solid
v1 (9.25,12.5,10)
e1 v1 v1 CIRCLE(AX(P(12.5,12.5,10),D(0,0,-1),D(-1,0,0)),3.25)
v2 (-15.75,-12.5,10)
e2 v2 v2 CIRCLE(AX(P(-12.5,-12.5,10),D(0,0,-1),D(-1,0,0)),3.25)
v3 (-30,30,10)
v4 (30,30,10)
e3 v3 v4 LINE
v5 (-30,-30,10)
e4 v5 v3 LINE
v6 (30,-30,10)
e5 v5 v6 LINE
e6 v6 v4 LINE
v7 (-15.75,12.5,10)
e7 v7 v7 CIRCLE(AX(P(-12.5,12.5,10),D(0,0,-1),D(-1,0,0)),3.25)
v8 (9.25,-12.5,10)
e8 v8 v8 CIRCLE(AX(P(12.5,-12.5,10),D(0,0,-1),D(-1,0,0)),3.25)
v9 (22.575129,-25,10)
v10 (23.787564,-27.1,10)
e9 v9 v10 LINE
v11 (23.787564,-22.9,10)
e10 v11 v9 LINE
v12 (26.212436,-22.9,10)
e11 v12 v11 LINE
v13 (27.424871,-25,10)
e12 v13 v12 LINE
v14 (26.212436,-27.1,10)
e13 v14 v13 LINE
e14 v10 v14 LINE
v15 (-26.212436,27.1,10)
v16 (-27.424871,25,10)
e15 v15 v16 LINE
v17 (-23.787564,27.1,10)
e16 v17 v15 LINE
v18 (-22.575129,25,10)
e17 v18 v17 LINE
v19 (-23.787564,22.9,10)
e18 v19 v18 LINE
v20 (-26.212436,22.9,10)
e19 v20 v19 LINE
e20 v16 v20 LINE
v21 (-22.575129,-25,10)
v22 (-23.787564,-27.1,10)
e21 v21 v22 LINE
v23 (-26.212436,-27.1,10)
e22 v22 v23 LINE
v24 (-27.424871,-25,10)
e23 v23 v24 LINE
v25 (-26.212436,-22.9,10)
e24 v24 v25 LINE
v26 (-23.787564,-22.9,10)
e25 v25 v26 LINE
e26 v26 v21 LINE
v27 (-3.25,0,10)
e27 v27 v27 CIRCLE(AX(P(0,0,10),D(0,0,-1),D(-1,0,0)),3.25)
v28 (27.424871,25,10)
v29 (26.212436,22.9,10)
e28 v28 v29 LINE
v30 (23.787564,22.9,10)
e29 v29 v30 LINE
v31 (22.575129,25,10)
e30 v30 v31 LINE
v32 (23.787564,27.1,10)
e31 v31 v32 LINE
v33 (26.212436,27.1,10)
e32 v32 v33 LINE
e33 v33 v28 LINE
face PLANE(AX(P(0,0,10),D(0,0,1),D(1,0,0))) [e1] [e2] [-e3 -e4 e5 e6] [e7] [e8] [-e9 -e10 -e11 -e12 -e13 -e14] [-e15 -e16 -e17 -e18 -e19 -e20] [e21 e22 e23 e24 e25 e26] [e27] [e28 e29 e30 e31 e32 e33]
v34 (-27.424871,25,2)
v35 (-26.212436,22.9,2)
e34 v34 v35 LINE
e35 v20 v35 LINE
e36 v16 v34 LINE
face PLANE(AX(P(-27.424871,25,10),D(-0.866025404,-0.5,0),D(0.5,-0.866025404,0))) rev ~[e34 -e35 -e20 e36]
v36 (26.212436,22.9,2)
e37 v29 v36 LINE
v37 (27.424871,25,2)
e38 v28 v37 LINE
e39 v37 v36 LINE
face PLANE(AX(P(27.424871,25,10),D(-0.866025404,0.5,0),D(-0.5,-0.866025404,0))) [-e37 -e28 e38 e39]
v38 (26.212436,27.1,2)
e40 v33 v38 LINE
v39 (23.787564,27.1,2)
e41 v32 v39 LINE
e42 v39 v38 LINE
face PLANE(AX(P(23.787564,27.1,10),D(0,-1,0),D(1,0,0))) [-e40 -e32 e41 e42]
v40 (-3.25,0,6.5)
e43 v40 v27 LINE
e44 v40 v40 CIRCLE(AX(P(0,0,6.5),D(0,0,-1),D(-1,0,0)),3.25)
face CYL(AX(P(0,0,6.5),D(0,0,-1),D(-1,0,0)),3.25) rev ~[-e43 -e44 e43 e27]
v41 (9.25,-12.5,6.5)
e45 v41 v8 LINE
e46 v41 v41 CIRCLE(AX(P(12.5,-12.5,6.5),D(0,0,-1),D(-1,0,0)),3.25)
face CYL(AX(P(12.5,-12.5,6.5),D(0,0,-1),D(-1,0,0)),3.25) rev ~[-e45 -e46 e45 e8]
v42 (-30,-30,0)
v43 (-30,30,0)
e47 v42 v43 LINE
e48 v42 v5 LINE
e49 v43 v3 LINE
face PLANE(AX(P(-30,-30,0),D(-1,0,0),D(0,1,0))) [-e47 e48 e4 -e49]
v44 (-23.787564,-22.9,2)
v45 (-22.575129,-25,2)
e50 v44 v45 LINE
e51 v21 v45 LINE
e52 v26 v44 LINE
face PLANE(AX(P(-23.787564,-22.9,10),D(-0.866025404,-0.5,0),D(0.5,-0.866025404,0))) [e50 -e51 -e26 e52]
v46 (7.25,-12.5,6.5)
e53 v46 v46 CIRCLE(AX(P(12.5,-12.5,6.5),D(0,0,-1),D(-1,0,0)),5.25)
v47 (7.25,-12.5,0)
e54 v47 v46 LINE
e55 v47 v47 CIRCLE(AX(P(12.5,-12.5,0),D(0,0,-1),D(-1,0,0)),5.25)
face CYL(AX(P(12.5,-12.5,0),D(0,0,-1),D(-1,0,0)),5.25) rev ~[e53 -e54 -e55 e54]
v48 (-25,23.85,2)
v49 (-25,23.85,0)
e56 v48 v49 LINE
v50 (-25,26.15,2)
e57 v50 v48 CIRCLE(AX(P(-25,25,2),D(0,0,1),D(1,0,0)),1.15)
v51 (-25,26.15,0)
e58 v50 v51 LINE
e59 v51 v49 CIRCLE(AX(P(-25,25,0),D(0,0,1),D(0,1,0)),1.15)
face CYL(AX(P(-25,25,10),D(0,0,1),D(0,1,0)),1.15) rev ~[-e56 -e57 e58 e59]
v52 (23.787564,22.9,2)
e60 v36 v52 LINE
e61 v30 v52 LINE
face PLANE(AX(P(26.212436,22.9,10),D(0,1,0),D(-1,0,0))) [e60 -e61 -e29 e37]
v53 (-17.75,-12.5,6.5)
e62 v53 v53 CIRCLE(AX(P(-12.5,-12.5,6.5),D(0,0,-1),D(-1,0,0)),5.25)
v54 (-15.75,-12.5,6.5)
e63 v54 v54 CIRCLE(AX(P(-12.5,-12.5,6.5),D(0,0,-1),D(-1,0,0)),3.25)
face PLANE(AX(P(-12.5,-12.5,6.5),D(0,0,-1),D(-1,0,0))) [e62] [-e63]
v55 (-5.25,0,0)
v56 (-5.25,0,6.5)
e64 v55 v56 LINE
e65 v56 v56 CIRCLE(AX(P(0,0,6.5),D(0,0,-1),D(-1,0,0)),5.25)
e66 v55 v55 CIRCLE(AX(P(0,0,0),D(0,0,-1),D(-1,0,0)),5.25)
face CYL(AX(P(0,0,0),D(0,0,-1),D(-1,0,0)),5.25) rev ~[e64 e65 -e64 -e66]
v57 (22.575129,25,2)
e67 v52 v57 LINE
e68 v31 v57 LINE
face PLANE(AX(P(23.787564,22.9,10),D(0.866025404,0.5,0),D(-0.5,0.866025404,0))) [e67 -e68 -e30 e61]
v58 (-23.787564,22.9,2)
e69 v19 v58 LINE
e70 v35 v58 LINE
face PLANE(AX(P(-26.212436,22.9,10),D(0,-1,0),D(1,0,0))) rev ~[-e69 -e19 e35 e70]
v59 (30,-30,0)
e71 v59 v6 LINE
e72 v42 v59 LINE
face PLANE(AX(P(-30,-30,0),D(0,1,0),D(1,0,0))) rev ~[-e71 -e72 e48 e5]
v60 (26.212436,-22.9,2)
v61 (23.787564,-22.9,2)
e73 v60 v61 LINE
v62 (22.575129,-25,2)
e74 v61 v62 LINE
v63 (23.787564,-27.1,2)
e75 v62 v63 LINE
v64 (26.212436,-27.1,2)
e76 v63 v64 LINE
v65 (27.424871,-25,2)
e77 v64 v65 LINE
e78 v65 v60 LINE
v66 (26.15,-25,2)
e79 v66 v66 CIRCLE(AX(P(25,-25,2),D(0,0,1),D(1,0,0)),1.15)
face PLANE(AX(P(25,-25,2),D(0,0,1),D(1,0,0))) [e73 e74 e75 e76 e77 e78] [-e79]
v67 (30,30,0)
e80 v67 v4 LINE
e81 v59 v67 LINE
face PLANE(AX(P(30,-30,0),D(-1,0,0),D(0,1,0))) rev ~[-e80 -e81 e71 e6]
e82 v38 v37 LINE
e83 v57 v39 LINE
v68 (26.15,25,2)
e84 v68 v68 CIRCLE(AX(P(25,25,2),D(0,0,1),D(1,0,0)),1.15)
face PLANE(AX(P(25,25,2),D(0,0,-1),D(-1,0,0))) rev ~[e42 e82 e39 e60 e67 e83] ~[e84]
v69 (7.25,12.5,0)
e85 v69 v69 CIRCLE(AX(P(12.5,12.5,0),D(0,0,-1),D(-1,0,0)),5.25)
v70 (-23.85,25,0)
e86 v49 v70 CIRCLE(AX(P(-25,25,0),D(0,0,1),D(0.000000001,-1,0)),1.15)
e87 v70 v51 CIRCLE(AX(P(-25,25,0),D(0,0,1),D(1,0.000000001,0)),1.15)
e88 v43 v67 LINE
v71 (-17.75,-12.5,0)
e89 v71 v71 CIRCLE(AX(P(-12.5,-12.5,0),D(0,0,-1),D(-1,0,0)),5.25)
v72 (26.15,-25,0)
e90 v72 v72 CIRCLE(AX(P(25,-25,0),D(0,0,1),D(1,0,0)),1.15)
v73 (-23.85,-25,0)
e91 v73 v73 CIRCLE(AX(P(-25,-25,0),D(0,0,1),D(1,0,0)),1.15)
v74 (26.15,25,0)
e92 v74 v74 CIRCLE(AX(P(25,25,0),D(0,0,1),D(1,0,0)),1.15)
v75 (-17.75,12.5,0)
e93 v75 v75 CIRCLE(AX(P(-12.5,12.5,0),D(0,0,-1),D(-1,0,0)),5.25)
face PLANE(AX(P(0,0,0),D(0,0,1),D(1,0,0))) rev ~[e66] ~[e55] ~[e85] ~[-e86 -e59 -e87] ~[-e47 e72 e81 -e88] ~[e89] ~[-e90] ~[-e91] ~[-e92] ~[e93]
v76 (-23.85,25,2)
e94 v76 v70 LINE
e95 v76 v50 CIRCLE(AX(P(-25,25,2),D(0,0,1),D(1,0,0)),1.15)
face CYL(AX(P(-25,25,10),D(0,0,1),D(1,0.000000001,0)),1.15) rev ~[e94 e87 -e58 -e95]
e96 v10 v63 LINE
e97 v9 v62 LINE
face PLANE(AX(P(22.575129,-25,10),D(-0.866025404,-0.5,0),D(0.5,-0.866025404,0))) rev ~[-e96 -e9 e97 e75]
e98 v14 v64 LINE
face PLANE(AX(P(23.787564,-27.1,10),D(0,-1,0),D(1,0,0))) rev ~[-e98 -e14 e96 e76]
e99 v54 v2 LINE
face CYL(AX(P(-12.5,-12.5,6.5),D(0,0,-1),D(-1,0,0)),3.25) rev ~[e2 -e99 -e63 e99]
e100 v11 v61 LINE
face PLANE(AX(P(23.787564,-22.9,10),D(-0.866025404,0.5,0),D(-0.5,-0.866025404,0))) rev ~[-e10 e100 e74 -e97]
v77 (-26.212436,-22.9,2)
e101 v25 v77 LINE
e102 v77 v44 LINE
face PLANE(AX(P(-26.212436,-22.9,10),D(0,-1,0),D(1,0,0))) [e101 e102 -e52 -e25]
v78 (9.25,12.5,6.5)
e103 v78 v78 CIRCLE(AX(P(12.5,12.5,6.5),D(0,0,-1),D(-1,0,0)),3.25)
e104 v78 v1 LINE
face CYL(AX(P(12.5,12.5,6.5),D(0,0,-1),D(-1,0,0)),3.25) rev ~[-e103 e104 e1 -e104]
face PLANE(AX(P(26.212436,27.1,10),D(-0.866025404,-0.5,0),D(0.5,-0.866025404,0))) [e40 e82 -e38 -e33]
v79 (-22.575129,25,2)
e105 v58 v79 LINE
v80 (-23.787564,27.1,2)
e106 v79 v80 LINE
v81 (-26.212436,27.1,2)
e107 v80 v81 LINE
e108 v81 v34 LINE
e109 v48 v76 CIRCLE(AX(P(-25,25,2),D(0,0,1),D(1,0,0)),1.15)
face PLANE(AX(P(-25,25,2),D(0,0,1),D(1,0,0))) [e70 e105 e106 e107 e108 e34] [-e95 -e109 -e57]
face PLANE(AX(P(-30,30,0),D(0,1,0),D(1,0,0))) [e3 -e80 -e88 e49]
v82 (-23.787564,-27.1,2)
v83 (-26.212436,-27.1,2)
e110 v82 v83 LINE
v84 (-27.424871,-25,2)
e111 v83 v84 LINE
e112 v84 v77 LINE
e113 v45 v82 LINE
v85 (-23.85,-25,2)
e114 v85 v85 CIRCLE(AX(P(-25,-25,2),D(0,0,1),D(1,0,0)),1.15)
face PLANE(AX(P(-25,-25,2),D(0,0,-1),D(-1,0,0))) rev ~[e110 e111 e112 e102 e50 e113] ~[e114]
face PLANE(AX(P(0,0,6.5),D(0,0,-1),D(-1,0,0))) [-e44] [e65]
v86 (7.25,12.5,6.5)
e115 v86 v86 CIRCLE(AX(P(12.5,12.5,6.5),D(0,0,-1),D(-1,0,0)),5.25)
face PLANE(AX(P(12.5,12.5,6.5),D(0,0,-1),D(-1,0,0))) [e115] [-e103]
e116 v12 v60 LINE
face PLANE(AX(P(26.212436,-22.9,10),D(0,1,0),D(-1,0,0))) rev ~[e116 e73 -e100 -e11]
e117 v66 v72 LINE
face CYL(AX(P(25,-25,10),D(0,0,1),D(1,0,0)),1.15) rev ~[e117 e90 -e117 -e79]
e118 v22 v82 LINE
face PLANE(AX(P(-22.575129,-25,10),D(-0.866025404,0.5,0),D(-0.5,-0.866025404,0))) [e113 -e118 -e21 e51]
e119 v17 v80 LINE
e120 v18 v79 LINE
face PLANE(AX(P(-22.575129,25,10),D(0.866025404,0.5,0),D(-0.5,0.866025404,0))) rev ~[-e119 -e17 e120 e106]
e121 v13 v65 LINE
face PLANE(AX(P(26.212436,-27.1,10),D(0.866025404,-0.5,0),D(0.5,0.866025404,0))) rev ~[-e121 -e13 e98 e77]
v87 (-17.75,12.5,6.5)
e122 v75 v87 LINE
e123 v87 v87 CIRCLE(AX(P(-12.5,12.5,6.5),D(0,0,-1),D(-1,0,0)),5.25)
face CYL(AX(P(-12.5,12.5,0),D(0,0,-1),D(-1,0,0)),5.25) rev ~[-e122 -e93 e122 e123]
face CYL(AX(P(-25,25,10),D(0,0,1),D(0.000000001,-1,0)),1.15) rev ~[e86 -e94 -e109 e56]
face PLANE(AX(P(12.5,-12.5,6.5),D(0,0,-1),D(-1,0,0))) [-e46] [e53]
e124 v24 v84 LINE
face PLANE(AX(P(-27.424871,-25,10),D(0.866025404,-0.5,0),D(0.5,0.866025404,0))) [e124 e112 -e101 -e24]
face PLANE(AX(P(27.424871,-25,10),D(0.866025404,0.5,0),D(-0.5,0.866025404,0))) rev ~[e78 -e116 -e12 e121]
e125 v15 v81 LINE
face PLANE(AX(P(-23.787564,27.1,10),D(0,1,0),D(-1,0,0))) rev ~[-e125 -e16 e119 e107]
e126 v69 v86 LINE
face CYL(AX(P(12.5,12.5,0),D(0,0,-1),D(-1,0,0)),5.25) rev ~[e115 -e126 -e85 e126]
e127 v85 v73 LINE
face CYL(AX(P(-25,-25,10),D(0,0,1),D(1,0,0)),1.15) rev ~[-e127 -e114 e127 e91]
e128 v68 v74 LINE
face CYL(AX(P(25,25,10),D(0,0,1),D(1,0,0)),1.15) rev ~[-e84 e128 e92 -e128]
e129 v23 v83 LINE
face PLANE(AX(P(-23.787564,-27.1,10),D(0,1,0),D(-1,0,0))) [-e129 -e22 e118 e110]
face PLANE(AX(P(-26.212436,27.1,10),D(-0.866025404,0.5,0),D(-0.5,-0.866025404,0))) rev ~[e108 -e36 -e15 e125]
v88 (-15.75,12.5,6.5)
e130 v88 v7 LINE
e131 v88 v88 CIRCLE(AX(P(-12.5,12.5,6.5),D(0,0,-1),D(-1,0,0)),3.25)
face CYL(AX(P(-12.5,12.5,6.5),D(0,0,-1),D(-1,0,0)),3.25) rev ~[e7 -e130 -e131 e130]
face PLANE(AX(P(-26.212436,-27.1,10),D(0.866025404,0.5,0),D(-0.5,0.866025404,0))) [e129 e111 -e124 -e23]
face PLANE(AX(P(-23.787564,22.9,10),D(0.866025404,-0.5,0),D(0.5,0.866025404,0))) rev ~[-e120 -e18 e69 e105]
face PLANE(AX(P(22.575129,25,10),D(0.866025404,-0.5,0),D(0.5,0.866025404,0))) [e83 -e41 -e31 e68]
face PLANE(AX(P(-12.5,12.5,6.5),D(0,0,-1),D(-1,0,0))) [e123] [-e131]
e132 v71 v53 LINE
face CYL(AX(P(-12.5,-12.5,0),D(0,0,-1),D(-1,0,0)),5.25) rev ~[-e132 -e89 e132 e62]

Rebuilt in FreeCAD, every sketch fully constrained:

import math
import FreeCAD as App
import Part
import Sketcher
from FreeCAD import Vector
Q = App.Units.Quantity


def add_polygon(sketch, points):
    """Adds a closed chain of lines whose ends are joined by coincident constraints."""
    first, n = sketch.GeometryCount, len(points)
    for a, b in zip(points, points[1:] + points[:1]):
        sketch.addGeometry(Part.LineSegment(App.Vector(*a, 0), App.Vector(*b, 0)), False)
    for i in range(n):
        sketch.addConstraint(Sketcher.Constraint("Coincident", first + i, 2, first + (i + 1) % n, 1))

doc = App.newDocument("Part")
body = doc.addObject("PartDesign::Body", "Body")

sketch1 = body.newObject("Sketcher::SketchObject", "Sketch")
sketch1.AttachmentSupport = (doc.getObject("XY_Plane"), [""])
sketch1.MapMode = "FlatFace"
add_polygon(sketch1, [(-30, 30), (-30, -30), (30, -30), (30, 30)])
sketch1.addConstraint([
    Sketcher.Constraint("Vertical", 0),
    Sketcher.Constraint("Horizontal", 1),
    Sketcher.Constraint("Vertical", 2),
    Sketcher.Constraint("Horizontal", 3),
    Sketcher.Constraint("Symmetric", 0, 2, 2, 2, -1, 1),
    Sketcher.Constraint("Equal", 3, 0),
    Sketcher.Constraint("DistanceX", 1, 1, 1, 2, 60.0),
])
pad1 = body.newObject("PartDesign::Pad", "Pad")
pad1.Profile = sketch1
pad1.Length = 10

sketch2 = body.newObject("Sketcher::SketchObject", "Sketch001")
sketch2.AttachmentSupport = (doc.getObject("XY_Plane"), [""])
sketch2.MapMode = "FlatFace"
sketch2.AttachmentOffset = App.Placement(Vector(0, 0, 10), App.Rotation())
sketch2.addGeometry([
    Part.ArcOfCircle(Part.Circle(Vector(-25, 25, 0), Vector(0, 0, 1), 1.1), math.radians(90), math.radians(270)),
    Part.ArcOfCircle(Part.Circle(Vector(-25, 25, 0), Vector(0, 0, 1), 1.2), math.radians(-90), math.radians(0)),
    Part.ArcOfCircle(Part.Circle(Vector(-25, 25, 0), Vector(0, 0, 1), 1.2), math.radians(0), math.radians(90)),
    Part.Circle(Vector(25, 25, 0), Vector(0, 0, 1), 1.1),
    Part.Circle(Vector(25, -25, 0), Vector(0, 0, 1), 1.1),
    Part.Circle(Vector(-25, -25, 0), Vector(0, 0, 1), 1.1),
], False)
sketch2.addConstraint([
    Sketcher.Constraint("Tangent", 0, 2, 1, 1),
    Sketcher.Constraint("Tangent", 1, 2, 2, 1),
    Sketcher.Constraint("Tangent", 2, 2, 0, 1),
    Sketcher.Constraint("Equal", 2, 3),
    Sketcher.Constraint("Equal", 3, 4),
    Sketcher.Constraint("Equal", 4, 5),
    Sketcher.Constraint("Symmetric", 0, 3, 4, 3, -1, 1),
    Sketcher.Constraint("Symmetric", 3, 3, 5, 3, -1, 1),
    Sketcher.Constraint("Symmetric", 0, 3, 3, 3, -2),
    Sketcher.Constraint("Horizontal", 3, 3, 1, 2),
    Sketcher.Constraint("Vertical", 5, 3, 0, 2),
    Sketcher.Constraint("Vertical", 0, 2, 2, 2),
    Sketcher.Constraint("Diameter", 3, 2.3),
    Sketcher.Constraint("DistanceX", 0, 3, -1, 1, 25.0),
    Sketcher.Constraint("DistanceY", -1, 1, 0, 3, 25.0),
])
pocket1 = body.newObject("PartDesign::Pocket", "Pocket")
pocket1.Profile = sketch2
pocket1.Type = "ThroughAll"

sketch3 = body.newObject("Sketcher::SketchObject", "Sketch002")
sketch3.AttachmentSupport = (doc.getObject("XY_Plane"), [""])
sketch3.MapMode = "FlatFace"
sketch3.AttachmentOffset = App.Placement(Vector(0, 0, 10), App.Rotation())
add_polygon(sketch3, [(-26.2, 22.9), (-23.8, 22.9), (-22.6, 25), (-23.8, 27.1), (-26.2, 27.1), (-27.4, 25)])
sketch3.addGeometry(Part.Circle(Vector(-25, 25, 0), Vector(0, 0, 1), 1.1), False)
add_polygon(sketch3, [(23.8, 27.1), (22.6, 25), (23.8, 22.9), (26.2, 22.9), (27.4, 25), (26.2, 27.1)])
sketch3.addGeometry(Part.Circle(Vector(25, 25, 0), Vector(0, 0, 1), 1.1), False)
add_polygon(sketch3, [(26.2, -22.9), (23.8, -22.9), (22.6, -25), (23.8, -27.1), (26.2, -27.1), (27.4, -25)])
sketch3.addGeometry(Part.Circle(Vector(25, -25, 0), Vector(0, 0, 1), 1.1), False)
add_polygon(sketch3, [(-23.8, -27.1), (-22.6, -25), (-23.8, -22.9), (-26.2, -22.9), (-27.4, -25), (-26.2, -27.1)])
sketch3.addGeometry(Part.Circle(Vector(-25, -25, 0), Vector(0, 0, 1), 1.1), False)
sketch3.addConstraint([
    Sketcher.Constraint("Horizontal", 0),
    Sketcher.Constraint("Horizontal", 3),
    Sketcher.Constraint("Horizontal", 9),
    Sketcher.Constraint("Horizontal", 12),
    Sketcher.Constraint("Horizontal", 14),
    Sketcher.Constraint("Horizontal", 17),
    Sketcher.Constraint("Horizontal", 23),
    Sketcher.Constraint("Horizontal", 26),
    Sketcher.Constraint("Equal", 6, 13),
    Sketcher.Constraint("Equal", 13, 20),
    Sketcher.Constraint("Equal", 20, 27),
    Sketcher.Constraint("Symmetric", 6, 3, 20, 3, -1, 1),
    Sketcher.Constraint("Symmetric", 13, 3, 27, 3, -1, 1),
    Sketcher.Constraint("Symmetric", 0, 2, 14, 2, -1, 1),
    Sketcher.Constraint("Symmetric", 1, 2, 15, 2, -1, 1),
    Sketcher.Constraint("Symmetric", 2, 2, 16, 2, -1, 1),
    Sketcher.Constraint("Symmetric", 4, 2, 18, 2, -1, 1),
    Sketcher.Constraint("Symmetric", 7, 2, 21, 2, -1, 1),
    Sketcher.Constraint("Symmetric", 8, 2, 22, 2, -1, 1),
    Sketcher.Constraint("Symmetric", 10, 2, 24, 2, -1, 1),
    Sketcher.Constraint("Symmetric", 11, 2, 25, 2, -1, 1),
    Sketcher.Constraint("Symmetric", 6, 3, 13, 3, -2),
    Sketcher.Constraint("Symmetric", 1, 2, 7, 2, -2),
    Sketcher.Constraint("Symmetric", 0, 2, 8, 2, -2),
    Sketcher.Constraint("Symmetric", 4, 2, 10, 2, -2),
    Sketcher.Constraint("Symmetric", 3, 2, 11, 2, -2),
    Sketcher.Constraint("Parallel", 1, 4),
    Sketcher.Constraint("Parallel", 2, 5),
    Sketcher.Constraint("Parallel", 4, 7),
    Sketcher.Constraint("Parallel", 5, 8),
    Sketcher.Constraint("Parallel", 7, 10),
    Sketcher.Constraint("Parallel", 15, 18),
    Sketcher.Constraint("Parallel", 16, 19),
    Sketcher.Constraint("Parallel", 18, 21),
    Sketcher.Constraint("Parallel", 21, 24),
    Sketcher.Constraint("Horizontal", 13, 3, 1, 2),
    Sketcher.Constraint("Horizontal", 1, 2, 4, 2),
    Sketcher.Constraint("Vertical", 0, 2, 2, 2),
    Sketcher.Constraint("Diameter", 6, 2.3),
    Sketcher.Constraint("Angle", 1, Q("60 deg")),
    Sketcher.Constraint("DistanceX", 6, 3, -1, 1, 25.0),
    Sketcher.Constraint("DistanceY", -1, 1, 6, 3, 25.0),
    Sketcher.Constraint("DistanceX", 1, 2, 10, 2, 50.0),
    Sketcher.Constraint("DistanceY", -1, 1, 0, 2, 22.9),
    Sketcher.Constraint("DistanceX", 0, 1, 0, 2, 2.424871),
])
pocket2 = body.newObject("PartDesign::Pocket", "Pocket001")
pocket2.Profile = sketch3
pocket2.Length = 8

sketch4 = body.newObject("Sketcher::SketchObject", "Sketch003")
sketch4.AttachmentSupport = (doc.getObject("XY_Plane"), [""])
sketch4.MapMode = "FlatFace"
sketch4.addGeometry([
    Part.Circle(Vector(12, 12, 0), Vector(0, 0, 1), 5),
    Part.Circle(Vector(-12, 12, 0), Vector(0, 0, 1), 5),
    Part.Circle(Vector(0, 0, 0), Vector(0, 0, 1), 5),
    Part.Circle(Vector(12, -12, 0), Vector(0, 0, 1), 5),
    Part.Circle(Vector(-12, -12, 0), Vector(0, 0, 1), 5),
], False)
sketch4.addConstraint([
    Sketcher.Constraint("Coincident", 2, 3, -1, 1),
    Sketcher.Constraint("Equal", 0, 1),
    Sketcher.Constraint("Equal", 1, 2),
    Sketcher.Constraint("Equal", 2, 3),
    Sketcher.Constraint("Equal", 3, 4),
    Sketcher.Constraint("Symmetric", 1, 3, 3, 3, -1, 1),
    Sketcher.Constraint("Symmetric", 0, 3, 4, 3, -1, 1),
    Sketcher.Constraint("Symmetric", 0, 3, 1, 3, -2),
    Sketcher.Constraint("Diameter", 0, 10.5),
    Sketcher.Constraint("DistanceX", 1, 3, 0, 3, 25.0),
    Sketcher.Constraint("DistanceY", 3, 3, 0, 3, 25.0),
])
pocket3 = body.newObject("PartDesign::Pocket", "Pocket002")
pocket3.Profile = sketch4
pocket3.Length = 6.5
pocket3.Reversed = True

sketch5 = body.newObject("Sketcher::SketchObject", "Sketch004")
sketch5.AttachmentSupport = (doc.getObject("XY_Plane"), [""])
sketch5.MapMode = "FlatFace"
sketch5.AttachmentOffset = App.Placement(Vector(0, 0, 6.5), App.Rotation())
sketch5.addGeometry([
    Part.Circle(Vector(12.5, 12.5, 0), Vector(0, 0, 1), 3.2),
    Part.Circle(Vector(-12.5, 12.5, 0), Vector(0, 0, 1), 3.2),
    Part.Circle(Vector(0, 0, 0), Vector(0, 0, 1), 3.2),
    Part.Circle(Vector(12.5, -12.5, 0), Vector(0, 0, 1), 3.2),
    Part.Circle(Vector(-12.5, -12.5, 0), Vector(0, 0, 1), 3.2),
], False)
sketch5.addConstraint([
    Sketcher.Constraint("Coincident", 2, 3, -1, 1),
    Sketcher.Constraint("Equal", 0, 1),
    Sketcher.Constraint("Equal", 1, 2),
    Sketcher.Constraint("Equal", 2, 3),
    Sketcher.Constraint("Equal", 3, 4),
    Sketcher.Constraint("Symmetric", 1, 3, 3, 3, -1, 1),
    Sketcher.Constraint("Symmetric", 0, 3, 4, 3, -1, 1),
    Sketcher.Constraint("Symmetric", 0, 3, 1, 3, -2),
    Sketcher.Constraint("Diameter", 0, 6.5),
    Sketcher.Constraint("DistanceX", 1, 3, 0, 3, 25.0),
    Sketcher.Constraint("DistanceY", 3, 3, 0, 3, 25.0),
])
pocket4 = body.newObject("PartDesign::Pocket", "Pocket003")
pocket4.Profile = sketch5
pocket4.Type = "ThroughAll"
pocket4.Reversed = True

doc.recompute()
